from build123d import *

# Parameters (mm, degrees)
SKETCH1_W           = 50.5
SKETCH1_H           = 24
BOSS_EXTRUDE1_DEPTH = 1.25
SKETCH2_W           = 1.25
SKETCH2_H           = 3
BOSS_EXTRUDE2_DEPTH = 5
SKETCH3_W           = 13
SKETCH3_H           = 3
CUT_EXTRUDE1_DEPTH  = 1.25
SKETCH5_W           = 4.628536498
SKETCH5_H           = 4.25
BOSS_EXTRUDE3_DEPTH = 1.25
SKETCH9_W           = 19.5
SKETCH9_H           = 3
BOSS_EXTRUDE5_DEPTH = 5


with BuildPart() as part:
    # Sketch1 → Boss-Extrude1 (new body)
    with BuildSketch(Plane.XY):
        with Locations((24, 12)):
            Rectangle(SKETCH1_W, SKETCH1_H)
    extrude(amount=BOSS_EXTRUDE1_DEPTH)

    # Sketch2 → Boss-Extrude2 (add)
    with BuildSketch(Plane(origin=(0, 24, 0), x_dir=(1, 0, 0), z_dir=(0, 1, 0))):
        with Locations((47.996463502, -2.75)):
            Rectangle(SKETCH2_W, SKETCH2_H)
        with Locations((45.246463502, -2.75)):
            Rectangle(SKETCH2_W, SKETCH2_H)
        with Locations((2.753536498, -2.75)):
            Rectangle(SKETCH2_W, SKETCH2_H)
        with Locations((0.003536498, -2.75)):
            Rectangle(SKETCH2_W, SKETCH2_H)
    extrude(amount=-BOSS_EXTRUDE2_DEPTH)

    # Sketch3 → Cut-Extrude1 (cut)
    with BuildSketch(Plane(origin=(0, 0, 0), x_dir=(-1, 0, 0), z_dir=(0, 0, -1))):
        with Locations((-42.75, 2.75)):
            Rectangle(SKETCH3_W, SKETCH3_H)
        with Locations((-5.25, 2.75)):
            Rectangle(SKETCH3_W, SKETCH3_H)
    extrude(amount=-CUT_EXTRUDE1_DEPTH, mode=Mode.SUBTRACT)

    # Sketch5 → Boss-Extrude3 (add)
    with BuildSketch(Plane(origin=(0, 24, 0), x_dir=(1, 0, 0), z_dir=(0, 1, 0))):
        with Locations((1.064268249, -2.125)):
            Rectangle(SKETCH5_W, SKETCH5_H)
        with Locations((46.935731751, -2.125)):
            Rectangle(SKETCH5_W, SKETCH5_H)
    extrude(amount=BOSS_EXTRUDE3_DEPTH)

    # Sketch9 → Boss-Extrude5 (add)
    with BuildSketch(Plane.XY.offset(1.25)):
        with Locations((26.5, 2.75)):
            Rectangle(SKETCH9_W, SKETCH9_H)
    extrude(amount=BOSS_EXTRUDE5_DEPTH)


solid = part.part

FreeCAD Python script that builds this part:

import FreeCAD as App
import Part
import Sketcher

V = App.Vector

doc = App.newDocument("Part")
params = doc.addObject("Spreadsheet::Sheet", "Params")
for row, (alias, value) in enumerate([
    ("sketch1_height", "24 mm"),
    ("sketch1_width", "50.5 mm"),
    ("pad1_length", "1.25 mm"),
    ("sketch2_height", "3 mm"),
    ("sketch2_width", "1.25 mm"),
    ("pad2_length", "5 mm"),
    ("sketch3_width", "13 mm"),
    ("sketch3_height", "3 mm"),
    ("pocket1_length", "1.25 mm"),
    ("sketch4_height", "4.25 mm"),
    ("pad3_length", "1.25 mm"),
    ("sketch5_height", "3 mm"),
    ("sketch5_width", "19.5 mm"),
    ("pad4_length", "5 mm"),
], start=1):
    params.set(f"A{row}", alias)
    params.set(f"B{row}", "=" + value)
    params.setAlias(f"B{row}", alias)

body = doc.addObject("PartDesign::Body", "Body")

sketch1 = body.newObject("Sketcher::SketchObject", "Sketch")
sketch1.AttachmentSupport = (doc.getObject("XY_Plane"), [""])
sketch1.MapMode = "FlatFace"
sketch1.addGeometry(Part.LineSegment(V(-1, 24, 0), V(-1, 0, 0)), False)
sketch1.addGeometry(Part.LineSegment(V(-1, 0, 0), V(49, 0, 0)), False)
sketch1.addGeometry(Part.LineSegment(V(49, 0, 0), V(49, 24, 0)), False)
sketch1.addGeometry(Part.LineSegment(V(49, 24, 0), V(-1, 24, 0)), False)
sketch1.addConstraint(Sketcher.Constraint("Coincident", 0, 2, 1, 1))
sketch1.addConstraint(Sketcher.Constraint("Coincident", 1, 2, 2, 1))
sketch1.addConstraint(Sketcher.Constraint("Coincident", 2, 2, 3, 1))
sketch1.addConstraint(Sketcher.Constraint("Coincident", 3, 2, 0, 1))
sketch1.addConstraint(Sketcher.Constraint("Vertical", 0))
sketch1.addConstraint(Sketcher.Constraint("Horizontal", 1))
sketch1.addConstraint(Sketcher.Constraint("Vertical", 2))
sketch1.addConstraint(Sketcher.Constraint("Horizontal", 3))
sketch1.addConstraint(Sketcher.Constraint("PointOnObject", 0, 2, -1))
sketch1.addConstraint(Sketcher.Constraint("DistanceY", 0, 2, 0, 1, 24.0))
sketch1.addConstraint(Sketcher.Constraint("DistanceX", 1, 1, 1, 2, 50.5))
sketch1.addConstraint(Sketcher.Constraint("DistanceX", 0, 2, -1, 1, 1.25))
sketch1.setExpression("Constraints[9]", "Params.sketch1_height")
sketch1.setExpression("Constraints[10]", "Params.sketch1_width")
pad1 = body.newObject("PartDesign::Pad", "Pad")
pad1.Profile = sketch1
pad1.setExpression("Length", "Params.pad1_length")

sketch2 = body.newObject("Sketcher::SketchObject", "Sketch001")
sketch2.AttachmentSupport = (doc.getObject("XZ_Plane"), [""])
sketch2.MapMode = "FlatFace"
sketch2.AttachmentOffset = App.Placement(V(0, 0, -24), App.Rotation())
sketch2.addGeometry(Part.LineSegment(V(47.4, 1.2, 0), V(47.4, 4.2, 0)), False)
sketch2.addGeometry(Part.LineSegment(V(47.4, 4.2, 0), V(48.6, 4.2, 0)), False)
sketch2.addGeometry(Part.LineSegment(V(48.6, 4.2, 0), V(48.6, 1.2, 0)), False)
sketch2.addGeometry(Part.LineSegment(V(48.6, 1.2, 0), V(47.4, 1.2, 0)), False)
sketch2.addGeometry(Part.LineSegment(V(44.6, 1.2, 0), V(44.6, 4.2, 0)), False)
sketch2.addGeometry(Part.LineSegment(V(44.6, 4.2, 0), V(45.9, 4.2, 0)), False)
sketch2.addGeometry(Part.LineSegment(V(45.9, 4.2, 0), V(45.9, 1.2, 0)), False)
sketch2.addGeometry(Part.LineSegment(V(45.9, 1.2, 0), V(44.6, 1.2, 0)), False)
sketch2.addGeometry(Part.LineSegment(V(2.1, 1.2, 0), V(2.1, 4.2, 0)), False)
sketch2.addGeometry(Part.LineSegment(V(2.1, 4.2, 0), V(3.4, 4.2, 0)), False)
sketch2.addGeometry(Part.LineSegment(V(3.4, 4.2, 0), V(3.4, 1.2, 0)), False)
sketch2.addGeometry(Part.LineSegment(V(3.4, 1.2, 0), V(2.1, 1.2, 0)), False)
sketch2.addGeometry(Part.LineSegment(V(-0.6, 1.2, 0), V(-0.6, 4.2, 0)), False)
sketch2.addGeometry(Part.LineSegment(V(-0.6, 4.2, 0), V(0.6, 4.2, 0)), False)
sketch2.addGeometry(Part.LineSegment(V(0.6, 4.2, 0), V(0.6, 1.2, 0)), False)
sketch2.addGeometry(Part.LineSegment(V(0.6, 1.2, 0), V(-0.6, 1.2, 0)), False)
sketch2.addConstraint(Sketcher.Constraint("Coincident", 0, 2, 1, 1))
sketch2.addConstraint(Sketcher.Constraint("Coincident", 1, 2, 2, 1))
sketch2.addConstraint(Sketcher.Constraint("Coincident", 2, 2, 3, 1))
sketch2.addConstraint(Sketcher.Constraint("Coincident", 3, 2, 0, 1))
sketch2.addConstraint(Sketcher.Constraint("Coincident", 4, 2, 5, 1))
sketch2.addConstraint(Sketcher.Constraint("Coincident", 5, 2, 6, 1))
sketch2.addConstraint(Sketcher.Constraint("Coincident", 6, 2, 7, 1))
sketch2.addConstraint(Sketcher.Constraint("Coincident", 7, 2, 4, 1))
sketch2.addConstraint(Sketcher.Constraint("Coincident", 8, 2, 9, 1))
sketch2.addConstraint(Sketcher.Constraint("Coincident", 9, 2, 10, 1))
sketch2.addConstraint(Sketcher.Constraint("Coincident", 10, 2, 11, 1))
sketch2.addConstraint(Sketcher.Constraint("Coincident", 11, 2, 8, 1))
sketch2.addConstraint(Sketcher.Constraint("Coincident", 12, 2, 13, 1))
sketch2.addConstraint(Sketcher.Constraint("Coincident", 13, 2, 14, 1))
sketch2.addConstraint(Sketcher.Constraint("Coincident", 14, 2, 15, 1))
sketch2.addConstraint(Sketcher.Constraint("Coincident", 15, 2, 12, 1))
sketch2.addConstraint(Sketcher.Constraint("Vertical", 0))
sketch2.addConstraint(Sketcher.Constraint("Horizontal", 1))
sketch2.addConstraint(Sketcher.Constraint("Vertical", 2))
sketch2.addConstraint(Sketcher.Constraint("Horizontal", 3))
sketch2.addConstraint(Sketcher.Constraint("Vertical", 4))
sketch2.addConstraint(Sketcher.Constraint("Horizontal", 5))
sketch2.addConstraint(Sketcher.Constraint("Vertical", 6))
sketch2.addConstraint(Sketcher.Constraint("Horizontal", 7))
sketch2.addConstraint(Sketcher.Constraint("Vertical", 8))
sketch2.addConstraint(Sketcher.Constraint("Horizontal", 9))
sketch2.addConstraint(Sketcher.Constraint("Vertical", 10))
sketch2.addConstraint(Sketcher.Constraint("Horizontal", 11))
sketch2.addConstraint(Sketcher.Constraint("Vertical", 12))
sketch2.addConstraint(Sketcher.Constraint("Horizontal", 13))
sketch2.addConstraint(Sketcher.Constraint("Vertical", 14))
sketch2.addConstraint(Sketcher.Constraint("Horizontal", 15))
sketch2.addConstraint(Sketcher.Constraint("Horizontal", 1, 2, 4, 2))
sketch2.addConstraint(Sketcher.Constraint("Horizontal", 3, 2, 6, 2))
sketch2.addConstraint(Sketcher.Constraint("Horizontal", 5, 2, 8, 2))
sketch2.addConstraint(Sketcher.Constraint("Horizontal", 7, 2, 10, 2))
sketch2.addConstraint(Sketcher.Constraint("Horizontal", 9, 2, 12, 2))
sketch2.addConstraint(Sketcher.Constraint("Horizontal", 11, 2, 14, 2))
sketch2.addConstraint(Sketcher.Constraint("Equal", 3, 5))
sketch2.addConstraint(Sketcher.Constraint("Equal", 7, 9))
sketch2.addConstraint(Sketcher.Constraint("Equal", 11, 13))
sketch2.addConstraint(Sketcher.Constraint("DistanceY", 0, 1, 0, 2, 3.0))
sketch2.addConstraint(Sketcher.Constraint("DistanceX", 4, 2, 1, 2, 4.0))
sketch2.addConstraint(Sketcher.Constraint("DistanceX", 12, 2, 9, 2, 4.0))
sketch2.addConstraint(Sketcher.Constraint("DistanceX", 1, 1, 1, 2, 1.25))
sketch2.addConstraint(Sketcher.Constraint("DistanceY", -1, 1, 0, 2, 4.25))
sketch2.addConstraint(Sketcher.Constraint("DistanceX", -1, 1, 0, 2, 47.371464))
sketch2.addConstraint(Sketcher.Constraint("DistanceX", -1, 1, 8, 2, 2.128536))
sketch2.setExpression("Constraints[41]", "Params.sketch2_height")
sketch2.setExpression("Constraints[44]", "Params.sketch2_width")
pad2 = body.newObject("PartDesign::Pad", "Pad001")
pad2.Profile = sketch2
pad2.setExpression("Length", "Params.pad2_length")

sketch3 = body.newObject("Sketcher::SketchObject", "Sketch002")
sketch3.AttachmentSupport = (doc.getObject("XY_Plane"), [""])
sketch3.MapMode = "FlatFace"
sketch3.addGeometry(Part.LineSegment(V(49.2, 4.2, 0), V(49.2, 1.2, 0)), False)
sketch3.addGeometry(Part.LineSegment(V(49.2, 1.2, 0), V(36.2, 1.2, 0)), False)
sketch3.addGeometry(Part.LineSegment(V(36.2, 1.2, 0), V(36.2, 4.2, 0)), False)
sketch3.addGeometry(Part.LineSegment(V(36.2, 4.2, 0), V(49.2, 4.2, 0)), False)
sketch3.addGeometry(Part.LineSegment(V(11.8, 4.2, 0), V(11.8, 1.2, 0)), False)
sketch3.addGeometry(Part.LineSegment(V(11.8, 1.2, 0), V(-1.2, 1.2, 0)), False)
sketch3.addGeometry(Part.LineSegment(V(-1.2, 1.2, 0), V(-1.2, 4.2, 0)), False)
sketch3.addGeometry(Part.LineSegment(V(-1.2, 4.2, 0), V(11.8, 4.2, 0)), False)
sketch3.addConstraint(Sketcher.Constraint("Coincident", 0, 2, 1, 1))
sketch3.addConstraint(Sketcher.Constraint("Coincident", 1, 2, 2, 1))
sketch3.addConstraint(Sketcher.Constraint("Coincident", 2, 2, 3, 1))
sketch3.addConstraint(Sketcher.Constraint("Coincident", 3, 2, 0, 1))
sketch3.addConstraint(Sketcher.Constraint("Coincident", 4, 2, 5, 1))
sketch3.addConstraint(Sketcher.Constraint("Coincident", 5, 2, 6, 1))
sketch3.addConstraint(Sketcher.Constraint("Coincident", 6, 2, 7, 1))
sketch3.addConstraint(Sketcher.Constraint("Coincident", 7, 2, 4, 1))
sketch3.addConstraint(Sketcher.Constraint("Vertical", 0))
sketch3.addConstraint(Sketcher.Constraint("Horizontal", 1))
sketch3.addConstraint(Sketcher.Constraint("Vertical", 2))
sketch3.addConstraint(Sketcher.Constraint("Horizontal", 3))
sketch3.addConstraint(Sketcher.Constraint("Vertical", 4))
sketch3.addConstraint(Sketcher.Constraint("Horizontal", 5))
sketch3.addConstraint(Sketcher.Constraint("Vertical", 6))
sketch3.addConstraint(Sketcher.Constraint("Horizontal", 7))
sketch3.addConstraint(Sketcher.Constraint("Horizontal", 1, 2, 4, 2))
sketch3.addConstraint(Sketcher.Constraint("Horizontal", 3, 2, 6, 2))
sketch3.addConstraint(Sketcher.Constraint("Equal", 3, 5))
sketch3.addConstraint(Sketcher.Constraint("DistanceX", 1, 2, 1, 1, 13.0))
sketch3.addConstraint(Sketcher.Constraint("DistanceY", 0, 2, 0, 1, 3.0))
sketch3.addConstraint(Sketcher.Constraint("DistanceX", 4, 2, 1, 2, 24.5))
sketch3.addConstraint(Sketcher.Constraint("DistanceX", -1, 1, 0, 2, 49.25))
sketch3.addConstraint(Sketcher.Constraint("DistanceY", -1, 1, 0, 2, 1.25))
sketch3.setExpression("Constraints[19]", "Params.sketch3_width")
sketch3.setExpression("Constraints[20]", "Params.sketch3_height")
pocket1 = body.newObject("PartDesign::Pocket", "Pocket")
pocket1.Profile = sketch3
pocket1.setExpression("Length", "Params.pocket1_length")
pocket1.Reversed = True

sketch4 = body.newObject("Sketcher::SketchObject", "Sketch003")
sketch4.AttachmentSupport = (doc.getObject("XZ_Plane"), [""])
sketch4.MapMode = "FlatFace"
sketch4.AttachmentOffset = App.Placement(V(0, 0, -24), App.Rotation())
sketch4.addGeometry(Part.LineSegment(V(-1.2, 0, 0), V(-1.2, 4.2, 0)), False)
sketch4.addGeometry(Part.LineSegment(V(-1.2, 4.2, 0), V(3.4, 4.2, 0)), False)
sketch4.addGeometry(Part.LineSegment(V(3.4, 4.2, 0), V(3.4, 0, 0)), False)
sketch4.addGeometry(Part.LineSegment(V(3.4, 0, 0), V(-1.2, 0, 0)), False)
sketch4.addGeometry(Part.LineSegment(V(44.6, 0, 0), V(44.6, 4.2, 0)), False)
sketch4.addGeometry(Part.LineSegment(V(44.6, 4.2, 0), V(49.2, 4.2, 0)), False)
sketch4.addGeometry(Part.LineSegment(V(49.2, 4.2, 0), V(49.2, 0, 0)), False)
sketch4.addGeometry(Part.LineSegment(V(49.2, 0, 0), V(44.6, 0, 0)), False)
sketch4.addConstraint(Sketcher.Constraint("Coincident", 0, 2, 1, 1))
sketch4.addConstraint(Sketcher.Constraint("Coincident", 1, 2, 2, 1))
sketch4.addConstraint(Sketcher.Constraint("Coincident", 2, 2, 3, 1))
sketch4.addConstraint(Sketcher.Constraint("Coincident", 3, 2, 0, 1))
sketch4.addConstraint(Sketcher.Constraint("Coincident", 4, 2, 5, 1))
sketch4.addConstraint(Sketcher.Constraint("Coincident", 5, 2, 6, 1))
sketch4.addConstraint(Sketcher.Constraint("Coincident", 6, 2, 7, 1))
sketch4.addConstraint(Sketcher.Constraint("Coincident", 7, 2, 4, 1))
sketch4.addConstraint(Sketcher.Constraint("Vertical", 0))
sketch4.addConstraint(Sketcher.Constraint("Horizontal", 1))
sketch4.addConstraint(Sketcher.Constraint("Vertical", 2))
sketch4.addConstraint(Sketcher.Constraint("Horizontal", 3))
sketch4.addConstraint(Sketcher.Constraint("Vertical", 4))
sketch4.addConstraint(Sketcher.Constraint("Horizontal", 5))
sketch4.addConstraint(Sketcher.Constraint("Vertical", 6))
sketch4.addConstraint(Sketcher.Constraint("Horizontal", 7))
sketch4.addConstraint(Sketcher.Constraint("PointOnObject", 2, 2, -1))
sketch4.addConstraint(Sketcher.Constraint("PointOnObject", 6, 2, -1))
sketch4.addConstraint(Sketcher.Constraint("Horizontal", 1, 2, 4, 2))
sketch4.addConstraint(Sketcher.Constraint("Equal", 3, 5))
sketch4.addConstraint(Sketcher.Constraint("DistanceY", 0, 1, 0, 2, 4.25))
sketch4.addConstraint(Sketcher.Constraint("DistanceX", 0, 2, 5, 2, 50.5))
sketch4.addConstraint(Sketcher.Constraint("DistanceX", 0, 2, -1, 1, 1.25))
sketch4.addConstraint(Sketcher.Constraint("DistanceX", 1, 1, 1, 2, 4.628536))
sketch4.setExpression("Constraints[20]", "Params.sketch4_height")
pad3 = body.newObject("PartDesign::Pad", "Pad002")
pad3.Profile = sketch4
pad3.setExpression("Length", "Params.pad3_length")
pad3.Reversed = True

sketch5 = body.newObject("Sketcher::SketchObject", "Sketch004")
sketch5.AttachmentSupport = (doc.getObject("XY_Plane"), [""])
sketch5.MapMode = "FlatFace"
sketch5.AttachmentOffset = App.Placement(V(0, 0, 1.25), App.Rotation())
sketch5.addGeometry(Part.LineSegment(V(16.8, 4.2, 0), V(16.8, 1.2, 0)), False)
sketch5.addGeometry(Part.LineSegment(V(16.8, 1.2, 0), V(36.2, 1.2, 0)), False)
sketch5.addGeometry(Part.LineSegment(V(36.2, 1.2, 0), V(36.2, 4.2, 0)), False)
sketch5.addGeometry(Part.LineSegment(V(36.2, 4.2, 0), V(16.8, 4.2, 0)), False)
sketch5.addConstraint(Sketcher.Constraint("Coincident", 0, 2, 1, 1))
sketch5.addConstraint(Sketcher.Constraint("Coincident", 1, 2, 2, 1))
sketch5.addConstraint(Sketcher.Constraint("Coincident", 2, 2, 3, 1))
sketch5.addConstraint(Sketcher.Constraint("Coincident", 3, 2, 0, 1))
sketch5.addConstraint(Sketcher.Constraint("Vertical", 0))
sketch5.addConstraint(Sketcher.Constraint("Horizontal", 1))
sketch5.addConstraint(Sketcher.Constraint("Vertical", 2))
sketch5.addConstraint(Sketcher.Constraint("Horizontal", 3))
sketch5.addConstraint(Sketcher.Constraint("DistanceY", 0, 2, 0, 1, 3.0))
sketch5.addConstraint(Sketcher.Constraint("DistanceX", 1, 1, 1, 2, 19.5))
sketch5.addConstraint(Sketcher.Constraint("DistanceX", -1, 1, 0, 2, 16.75))
sketch5.addConstraint(Sketcher.Constraint("DistanceY", -1, 1, 0, 2, 1.25))
sketch5.setExpression("Constraints[8]", "Params.sketch5_height")
sketch5.setExpression("Constraints[9]", "Params.sketch5_width")
pad4 = body.newObject("PartDesign::Pad", "Pad003")
pad4.Profile = sketch5
pad4.setExpression("Length", "Params.pad4_length")

doc.recompute()
